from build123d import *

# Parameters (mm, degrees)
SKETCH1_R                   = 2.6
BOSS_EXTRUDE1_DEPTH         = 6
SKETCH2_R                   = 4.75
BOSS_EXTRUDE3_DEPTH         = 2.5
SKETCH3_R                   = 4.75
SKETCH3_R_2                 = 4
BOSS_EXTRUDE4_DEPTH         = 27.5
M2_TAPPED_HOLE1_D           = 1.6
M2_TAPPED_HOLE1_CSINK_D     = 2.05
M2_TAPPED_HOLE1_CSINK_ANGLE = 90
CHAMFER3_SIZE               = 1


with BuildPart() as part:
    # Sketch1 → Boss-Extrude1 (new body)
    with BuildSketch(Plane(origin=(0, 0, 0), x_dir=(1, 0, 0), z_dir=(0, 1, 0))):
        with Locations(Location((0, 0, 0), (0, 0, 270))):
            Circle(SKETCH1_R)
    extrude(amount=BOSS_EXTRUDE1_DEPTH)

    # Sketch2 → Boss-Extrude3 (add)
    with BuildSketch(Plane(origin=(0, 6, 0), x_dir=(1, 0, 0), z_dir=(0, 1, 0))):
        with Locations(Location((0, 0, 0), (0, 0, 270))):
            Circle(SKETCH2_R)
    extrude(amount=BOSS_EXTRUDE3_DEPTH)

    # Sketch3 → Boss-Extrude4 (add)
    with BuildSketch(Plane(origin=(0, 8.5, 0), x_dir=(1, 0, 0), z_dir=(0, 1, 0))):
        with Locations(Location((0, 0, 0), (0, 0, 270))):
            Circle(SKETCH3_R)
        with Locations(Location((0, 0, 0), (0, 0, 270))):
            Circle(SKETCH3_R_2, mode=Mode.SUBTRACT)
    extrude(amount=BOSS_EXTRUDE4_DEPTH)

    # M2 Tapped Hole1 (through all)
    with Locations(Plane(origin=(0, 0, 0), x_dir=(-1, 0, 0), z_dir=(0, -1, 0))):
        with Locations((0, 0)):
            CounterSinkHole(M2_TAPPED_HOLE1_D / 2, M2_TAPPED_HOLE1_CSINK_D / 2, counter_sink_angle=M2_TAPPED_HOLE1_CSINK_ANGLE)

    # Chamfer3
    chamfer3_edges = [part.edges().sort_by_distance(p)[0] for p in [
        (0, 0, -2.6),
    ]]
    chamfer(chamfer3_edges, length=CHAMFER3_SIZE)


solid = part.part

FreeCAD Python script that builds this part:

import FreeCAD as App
import Part
import Sketcher

V = App.Vector


def edges_at(feature, points):
    """Names of the edges that pass closest to the given points."""
    edges = feature.Shape.Edges
    near = lambda p: min(range(len(edges)), key=lambda i: edges[i].distToShape(Part.Vertex(*p))[0])
    return sorted({f"Edge{near(p) + 1}" for p in points})

doc = App.newDocument("Part")
body = doc.addObject("PartDesign::Body", "Body")

sketch1 = body.newObject("Sketcher::SketchObject", "Sketch")
sketch1.AttachmentSupport = (doc.getObject("XZ_Plane"), [""])
sketch1.MapMode = "FlatFace"
sketch1.addGeometry(Part.Circle(V(0, 0, 0), V(0, 0, 1), 2.6), False)
sketch1.addConstraint([
    Sketcher.Constraint("Coincident", 0, 3, -1, 1),
    Sketcher.Constraint("Diameter", 0, 5.2),
])
pad1 = body.newObject("PartDesign::Pad", "Pad")
pad1.Profile = sketch1
pad1.Length = 6
pad1.Reversed = True

sketch2 = body.newObject("Sketcher::SketchObject", "Sketch001")
sketch2.AttachmentSupport = (doc.getObject("XZ_Plane"), [""])
sketch2.MapMode = "FlatFace"
sketch2.AttachmentOffset = App.Placement(V(0, 0, -6), App.Rotation())
sketch2.addGeometry(Part.Circle(V(0, 0, 0), V(0, 0, 1), 4.8), False)
sketch2.addConstraint([
    Sketcher.Constraint("Coincident", 0, 3, -1, 1),
    Sketcher.Constraint("Diameter", 0, 9.5),
])
pad2 = body.newObject("PartDesign::Pad", "Pad001")
pad2.Profile = sketch2
pad2.Length = 2.5
pad2.Reversed = True

sketch3 = body.newObject("Sketcher::SketchObject", "Sketch002")
sketch3.AttachmentSupport = (doc.getObject("XZ_Plane"), [""])
sketch3.MapMode = "FlatFace"
sketch3.AttachmentOffset = App.Placement(V(0, 0, -8.5), App.Rotation())
sketch3.addGeometry([
    Part.Circle(V(0, 0, 0), V(0, 0, 1), 4.8),
    Part.Circle(V(0, 0, 0), V(0, 0, 1), 4),
], False)
sketch3.addConstraint([
    Sketcher.Constraint("Coincident", 0, 3, -1, 1),
    Sketcher.Constraint("Coincident", 1, 3, -1, 1),
    Sketcher.Constraint("Diameter", 1, 8.0),
    Sketcher.Constraint("Diameter", 0, 9.5),
])
pad3 = body.newObject("PartDesign::Pad", "Pad002")
pad3.Profile = sketch3
pad3.Length = 27.5
pad3.Reversed = True

sketch4 = body.newObject("Sketcher::SketchObject", "Sketch003")
sketch4.AttachmentSupport = (doc.getObject("XZ_Plane"), [""])
sketch4.MapMode = "FlatFace"
sketch4.addGeometry(Part.Circle(V(0, 0, 0), V(0, 0, 1), 0.8), False)
sketch4.addConstraint([
    Sketcher.Constraint("Coincident", 0, 3, -1, 1),
    Sketcher.Constraint("Diameter", 0, 1.6),
])
doc.recompute()
hole = body.newObject("PartDesign::Hole", "Hole")
hole.Profile = sketch4
hole.ThreadType = "None"
hole.Diameter = 1.6
hole.DepthType = "ThroughAll"
hole.HoleCutType = "Countersink"
hole.HoleCutDiameter = 2.05
hole.HoleCutCountersinkAngle = 90
doc.recompute()

chamfer = body.newObject("PartDesign::Chamfer", "Chamfer")
chamfer.Base = (hole, edges_at(hole, [(0, 0, -2.6)]))
chamfer.Size = 1

doc.recompute()
